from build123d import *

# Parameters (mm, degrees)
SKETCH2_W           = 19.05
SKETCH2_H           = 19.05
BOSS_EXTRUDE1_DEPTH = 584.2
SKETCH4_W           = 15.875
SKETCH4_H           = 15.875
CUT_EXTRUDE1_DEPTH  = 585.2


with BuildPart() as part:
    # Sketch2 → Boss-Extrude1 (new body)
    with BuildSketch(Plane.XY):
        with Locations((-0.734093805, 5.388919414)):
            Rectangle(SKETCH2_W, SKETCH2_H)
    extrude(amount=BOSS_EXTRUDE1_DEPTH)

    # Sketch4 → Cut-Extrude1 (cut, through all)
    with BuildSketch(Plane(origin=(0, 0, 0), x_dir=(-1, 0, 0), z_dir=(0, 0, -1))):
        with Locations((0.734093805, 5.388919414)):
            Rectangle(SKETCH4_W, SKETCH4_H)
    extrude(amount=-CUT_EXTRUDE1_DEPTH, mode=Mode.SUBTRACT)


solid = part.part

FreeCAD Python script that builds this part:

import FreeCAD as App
import Part
import Sketcher

V = App.Vector
Q = App.Units.Quantity

doc = App.newDocument("Part")
body = doc.addObject("PartDesign::Body", "Body")

# Sketch on XY plane
sketch1 = body.newObject("Sketcher::SketchObject", "Sketch")
sketch1.AttachmentSupport = (doc.getObject("XY_Plane"), [""])
sketch1.MapMode = "FlatFace"
sketch1.addGeometry([
    Part.LineSegment(V(-10.259094, 14.913919, 0), V(-10.259094, -4.136081, 0)),
    Part.LineSegment(V(-10.259094, -4.136081, 0), V(8.790906, -4.136081, 0)),
    Part.LineSegment(V(8.790906, -4.136081, 0), V(8.790906, 14.913919, 0)),
    Part.LineSegment(V(8.790906, 14.913919, 0), V(-10.259094, 14.913919, 0)),
], False)
sketch1.addConstraint([
    Sketcher.Constraint("Coincident", 0, 2, 1, 1),
    Sketcher.Constraint("Coincident", 1, 2, 2, 1),
    Sketcher.Constraint("Coincident", 2, 2, 3, 1),
    Sketcher.Constraint("Coincident", 3, 2, 0, 1),
    Sketcher.Constraint("Vertical", 0),
    Sketcher.Constraint("Horizontal", 1),
    Sketcher.Constraint("Vertical", 2),
    Sketcher.Constraint("Horizontal", 3),
    Sketcher.Constraint("Equal", 3, 0),
    Sketcher.Constraint("DistanceX", 1, 1, 1, 2, Q("0.75 in")),
    Sketcher.Constraint("DistanceY", 0, 2, -1, 1, 4.136081),
    Sketcher.Constraint("DistanceX", 0, 2, -1, 1, 10.259094),
])
pad1 = body.newObject("PartDesign::Pad", "Pad")
pad1.Profile = sketch1
pad1.Length = Q("23 in")

# Sketch on XY plane
sketch2 = body.newObject("Sketcher::SketchObject", "Sketch001")
sketch2.AttachmentSupport = (doc.getObject("XY_Plane"), [""])
sketch2.MapMode = "FlatFace"
sketch2.addGeometry([
    Part.LineSegment(V(7.203406, 13.326419, 0), V(7.203406, -2.548581, 0)),
    Part.LineSegment(V(7.203406, -2.548581, 0), V(-8.671594, -2.548581, 0)),
    Part.LineSegment(V(-8.671594, -2.548581, 0), V(-8.671594, 13.326419, 0)),
    Part.LineSegment(V(-8.671594, 13.326419, 0), V(7.203406, 13.326419, 0)),
], False)
sketch2.addConstraint([
    Sketcher.Constraint("Coincident", 0, 2, 1, 1),
    Sketcher.Constraint("Coincident", 1, 2, 2, 1),
    Sketcher.Constraint("Coincident", 2, 2, 3, 1),
    Sketcher.Constraint("Coincident", 3, 2, 0, 1),
    Sketcher.Constraint("Vertical", 0),
    Sketcher.Constraint("Horizontal", 1),
    Sketcher.Constraint("Vertical", 2),
    Sketcher.Constraint("Horizontal", 3),
    Sketcher.Constraint("Equal", 3, 0),
    Sketcher.Constraint("DistanceX", 1, 2, 1, 1, Q("0.625 in")),
    Sketcher.Constraint("DistanceY", 0, 2, -1, 1, 2.548581),
    Sketcher.Constraint("DistanceX", -1, 1, 0, 2, 7.203406),
])
pocket1 = body.newObject("PartDesign::Pocket", "Pocket")
pocket1.Profile = sketch2
pocket1.Type = "ThroughAll"
pocket1.Reversed = True

doc.recompute()
